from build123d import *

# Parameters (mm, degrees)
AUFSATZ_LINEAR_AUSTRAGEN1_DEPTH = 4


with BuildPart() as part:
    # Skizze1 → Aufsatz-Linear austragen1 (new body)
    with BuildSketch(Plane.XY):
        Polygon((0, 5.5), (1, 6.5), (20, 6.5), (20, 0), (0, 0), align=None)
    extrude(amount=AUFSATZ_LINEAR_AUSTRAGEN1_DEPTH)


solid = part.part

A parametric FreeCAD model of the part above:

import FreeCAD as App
import Part
import Sketcher
from FreeCAD import Vector
Q = App.Units.Quantity

doc = App.newDocument("Part")
params = doc.addObject("Spreadsheet::Sheet", "Params")
for row, (alias, value) in enumerate([
    ("sketch1_width", "20 mm"),
    ("sketch1_width2", "19 mm"),
    ("sketch1_height", "5.5 mm"),
    ("pad1_length", "4 mm"),
], start=1):
    params.set(f"A{row}", alias)
    params.set(f"B{row}", "=" + value)
    params.setAlias(f"B{row}", alias)

body = doc.addObject("PartDesign::Body", "Body")

# Sketch on XY plane
sketch1 = doc.addObject("Sketcher::SketchObject", "Sketch")
body.addObject(sketch1)
sketch1.AttachmentSupport = (doc.XY_Plane, [""])
sketch1.MapMode = "FlatFace"
sketch1.addGeometry([
    Part.LineSegment(Vector(1, 6.5, 0), Vector(0, 5.5, 0)),  # 0
    Part.LineSegment(Vector(0, 5.5, 0), Vector(0, 0, 0)),  # 1
    Part.LineSegment(Vector(0, 0, 0), Vector(20, 0, 0)),  # 2
    Part.LineSegment(Vector(20, 0, 0), Vector(20, 6.5, 0)),  # 3
    Part.LineSegment(Vector(20, 6.5, 0), Vector(1, 6.5, 0)),  # 4
], False)
sketch1.addConstraint([
    Sketcher.Constraint("Coincident", 0, 2, 1, 1),
    Sketcher.Constraint("Coincident", 1, 2, 2, 1),
    Sketcher.Constraint("Coincident", 2, 2, 3, 1),
    Sketcher.Constraint("Coincident", 3, 2, 4, 1),
    Sketcher.Constraint("Coincident", 4, 2, 0, 1),
    Sketcher.Constraint("Vertical", 1),
    Sketcher.Constraint("Horizontal", 2),
    Sketcher.Constraint("Vertical", 3),
    Sketcher.Constraint("Horizontal", 4),
    Sketcher.Constraint("Coincident", 1, 2, -1, 1),
    Sketcher.Constraint("DistanceX", 2, 1, 2, 2, 20.0),
    Sketcher.Constraint("DistanceX", 4, 2, 4, 1, 19.0),
    Sketcher.Constraint("Angle", 0, Q("-135 deg")),
    Sketcher.Constraint("DistanceY", 1, 2, 1, 1, 5.5),
])
sketch1.setExpression("Constraints[10]", "Params.sketch1_width")
sketch1.setExpression("Constraints[11]", "Params.sketch1_width2")
sketch1.setExpression("Constraints[13]", "Params.sketch1_height")
pad1 = doc.addObject("PartDesign::Pad", "Pad")
body.addObject(pad1)
pad1.Profile = sketch1
pad1.setExpression("Length", "Params.pad1_length")

doc.recompute()
